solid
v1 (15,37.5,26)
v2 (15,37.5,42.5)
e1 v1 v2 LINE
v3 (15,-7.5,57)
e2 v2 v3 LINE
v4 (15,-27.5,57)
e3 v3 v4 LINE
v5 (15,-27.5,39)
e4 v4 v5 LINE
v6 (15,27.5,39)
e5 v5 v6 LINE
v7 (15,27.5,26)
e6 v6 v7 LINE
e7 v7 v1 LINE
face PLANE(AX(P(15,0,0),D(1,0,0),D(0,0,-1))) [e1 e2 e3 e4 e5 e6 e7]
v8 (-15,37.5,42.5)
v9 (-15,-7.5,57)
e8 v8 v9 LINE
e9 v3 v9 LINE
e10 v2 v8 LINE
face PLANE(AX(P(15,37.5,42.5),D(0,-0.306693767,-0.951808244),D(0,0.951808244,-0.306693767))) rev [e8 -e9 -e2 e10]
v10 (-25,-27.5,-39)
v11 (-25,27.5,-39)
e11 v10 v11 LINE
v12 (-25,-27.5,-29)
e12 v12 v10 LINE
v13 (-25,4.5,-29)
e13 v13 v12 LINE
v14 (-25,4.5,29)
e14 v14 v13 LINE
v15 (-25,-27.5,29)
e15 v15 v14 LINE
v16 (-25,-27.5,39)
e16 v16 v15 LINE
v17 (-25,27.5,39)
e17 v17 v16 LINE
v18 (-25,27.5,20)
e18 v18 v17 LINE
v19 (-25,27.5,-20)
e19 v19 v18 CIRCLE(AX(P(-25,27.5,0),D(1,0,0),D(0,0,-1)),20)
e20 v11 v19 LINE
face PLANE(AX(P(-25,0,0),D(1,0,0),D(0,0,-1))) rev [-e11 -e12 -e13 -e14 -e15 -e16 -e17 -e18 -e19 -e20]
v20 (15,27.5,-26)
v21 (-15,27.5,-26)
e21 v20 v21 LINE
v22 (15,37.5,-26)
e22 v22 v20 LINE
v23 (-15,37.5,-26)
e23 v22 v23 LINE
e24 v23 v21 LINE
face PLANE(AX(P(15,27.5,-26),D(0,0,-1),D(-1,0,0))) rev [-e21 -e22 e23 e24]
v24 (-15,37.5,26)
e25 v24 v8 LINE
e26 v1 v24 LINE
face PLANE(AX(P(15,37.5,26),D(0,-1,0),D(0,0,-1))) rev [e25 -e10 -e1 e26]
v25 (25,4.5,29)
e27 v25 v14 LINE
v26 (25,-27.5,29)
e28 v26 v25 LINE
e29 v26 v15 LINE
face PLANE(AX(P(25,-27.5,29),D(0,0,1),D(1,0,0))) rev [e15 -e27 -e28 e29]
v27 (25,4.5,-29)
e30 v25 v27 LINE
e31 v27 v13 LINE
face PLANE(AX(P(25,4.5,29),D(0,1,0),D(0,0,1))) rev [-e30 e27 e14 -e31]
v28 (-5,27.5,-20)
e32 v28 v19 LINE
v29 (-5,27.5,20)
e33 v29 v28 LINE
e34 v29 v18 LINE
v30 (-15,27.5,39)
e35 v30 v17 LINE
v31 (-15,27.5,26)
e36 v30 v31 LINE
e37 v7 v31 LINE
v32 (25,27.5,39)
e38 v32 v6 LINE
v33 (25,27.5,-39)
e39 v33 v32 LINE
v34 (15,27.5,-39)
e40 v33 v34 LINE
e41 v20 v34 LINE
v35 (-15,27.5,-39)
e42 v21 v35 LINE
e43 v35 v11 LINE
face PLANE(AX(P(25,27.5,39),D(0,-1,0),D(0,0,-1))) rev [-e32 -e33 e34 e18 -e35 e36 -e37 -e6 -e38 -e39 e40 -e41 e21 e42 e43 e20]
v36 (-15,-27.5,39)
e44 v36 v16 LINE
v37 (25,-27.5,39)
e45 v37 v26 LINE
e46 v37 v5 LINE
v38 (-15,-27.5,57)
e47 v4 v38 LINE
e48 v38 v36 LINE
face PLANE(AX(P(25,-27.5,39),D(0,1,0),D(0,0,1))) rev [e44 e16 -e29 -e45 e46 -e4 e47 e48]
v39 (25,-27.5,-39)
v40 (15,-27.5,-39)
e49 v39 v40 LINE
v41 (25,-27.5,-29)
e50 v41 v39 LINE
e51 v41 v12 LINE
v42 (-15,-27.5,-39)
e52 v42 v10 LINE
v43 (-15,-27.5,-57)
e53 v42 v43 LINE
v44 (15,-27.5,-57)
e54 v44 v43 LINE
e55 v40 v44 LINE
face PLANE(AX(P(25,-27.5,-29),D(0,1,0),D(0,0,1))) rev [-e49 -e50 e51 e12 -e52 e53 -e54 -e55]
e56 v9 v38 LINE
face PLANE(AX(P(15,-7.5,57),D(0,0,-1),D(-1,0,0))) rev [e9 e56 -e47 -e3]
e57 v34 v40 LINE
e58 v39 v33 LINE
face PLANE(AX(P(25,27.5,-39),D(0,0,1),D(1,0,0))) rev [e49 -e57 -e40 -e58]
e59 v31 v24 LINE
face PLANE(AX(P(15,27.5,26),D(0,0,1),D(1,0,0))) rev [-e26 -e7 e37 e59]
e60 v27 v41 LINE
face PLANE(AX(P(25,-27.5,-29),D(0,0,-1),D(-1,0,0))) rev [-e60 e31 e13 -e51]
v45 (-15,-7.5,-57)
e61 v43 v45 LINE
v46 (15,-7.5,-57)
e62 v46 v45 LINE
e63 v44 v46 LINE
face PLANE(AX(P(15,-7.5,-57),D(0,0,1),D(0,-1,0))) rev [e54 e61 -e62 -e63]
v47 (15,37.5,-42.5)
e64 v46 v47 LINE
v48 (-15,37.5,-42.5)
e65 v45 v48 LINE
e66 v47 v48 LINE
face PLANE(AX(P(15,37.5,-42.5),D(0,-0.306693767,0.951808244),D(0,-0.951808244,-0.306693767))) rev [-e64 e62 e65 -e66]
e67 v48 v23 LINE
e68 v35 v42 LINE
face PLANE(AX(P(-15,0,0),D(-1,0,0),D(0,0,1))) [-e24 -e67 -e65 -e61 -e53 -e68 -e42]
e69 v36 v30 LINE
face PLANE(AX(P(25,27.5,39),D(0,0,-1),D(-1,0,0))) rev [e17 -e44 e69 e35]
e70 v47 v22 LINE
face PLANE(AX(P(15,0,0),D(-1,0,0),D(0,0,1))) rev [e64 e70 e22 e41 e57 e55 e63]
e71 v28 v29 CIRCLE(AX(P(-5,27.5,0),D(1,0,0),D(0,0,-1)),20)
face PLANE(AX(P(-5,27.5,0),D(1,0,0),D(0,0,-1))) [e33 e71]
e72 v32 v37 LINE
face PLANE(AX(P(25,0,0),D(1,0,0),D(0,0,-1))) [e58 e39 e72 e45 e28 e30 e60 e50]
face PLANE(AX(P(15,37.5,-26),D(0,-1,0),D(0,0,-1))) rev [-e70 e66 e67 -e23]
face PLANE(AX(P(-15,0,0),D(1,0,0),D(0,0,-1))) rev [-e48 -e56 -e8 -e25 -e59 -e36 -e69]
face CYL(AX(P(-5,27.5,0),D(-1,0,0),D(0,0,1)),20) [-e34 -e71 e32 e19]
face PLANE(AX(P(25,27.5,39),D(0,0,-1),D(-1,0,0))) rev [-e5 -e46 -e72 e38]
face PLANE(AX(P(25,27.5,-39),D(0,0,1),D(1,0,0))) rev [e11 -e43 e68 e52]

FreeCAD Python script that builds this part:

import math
import FreeCAD as App
import Part
import Sketcher
from FreeCAD import Vector
Q = App.Units.Quantity


def add_polygon(sketch, points):
    """Adds a closed chain of lines whose ends are joined by coincident constraints."""
    first, n = sketch.GeometryCount, len(points)
    for a, b in zip(points, points[1:] + points[:1]):
        sketch.addGeometry(Part.LineSegment(App.Vector(*a, 0), App.Vector(*b, 0)), False)
    for i in range(n):
        sketch.addConstraint(Sketcher.Constraint("Coincident", first + i, 2, first + (i + 1) % n, 1))

doc = App.newDocument("Part")
body = doc.addObject("PartDesign::Body", "Body")

sketch1 = doc.addObject("Sketcher::SketchObject", "Sketch")
body.addObject(sketch1)
sketch1.AttachmentSupport = (doc.YZ_Plane, [""])
sketch1.MapMode = "FlatFace"
add_polygon(sketch1, [(-27.5, -29), (-27.5, -39), (27.5, -39), (27.5, 39), (-27.5, 39), (-27.5, 29), (4.5, 29), (4.5, -29)])
sketch1.addConstraint(Sketcher.Constraint("Vertical", 0))
sketch1.addConstraint(Sketcher.Constraint("Horizontal", 1))
sketch1.addConstraint(Sketcher.Constraint("Vertical", 2))
sketch1.addConstraint(Sketcher.Constraint("Horizontal", 3))
sketch1.addConstraint(Sketcher.Constraint("Vertical", 4))
sketch1.addConstraint(Sketcher.Constraint("Horizontal", 5))
sketch1.addConstraint(Sketcher.Constraint("Vertical", 6))
sketch1.addConstraint(Sketcher.Constraint("Horizontal", 7))
sketch1.addConstraint(Sketcher.Constraint("Symmetric", 0, 2, 2, 2, -1, 1))
sketch1.addConstraint(Sketcher.Constraint("Symmetric", 4, 2, 7, 2, -1))
sketch1.addConstraint(Sketcher.Constraint("DistanceX", 1, 1, 1, 2, Q("55 mm")))
sketch1.addConstraint(Sketcher.Constraint("DistanceX", 5, 1, 5, 2, Q("32 mm")))
sketch1.addConstraint(Sketcher.Constraint("DistanceY", 0, 2, 0, 1, Q("10 mm")))
sketch1.addConstraint(Sketcher.Constraint("DistanceY", 2, 1, 2, 2, Q("78 mm")))
pad1 = doc.addObject("PartDesign::Pad", "Pad")
body.addObject(pad1)
pad1.Profile = sketch1
pad1.Length = 50
pad1.Midplane = True

sketch2 = doc.addObject("Sketcher::SketchObject", "Sketch001")
body.addObject(sketch2)
sketch2.AttachmentSupport = (doc.YZ_Plane, [""])
sketch2.MapMode = "FlatFace"
add_polygon(sketch2, [(27.5, 26), (37.5, 26), (37.5, 42.5), (-7.5, 57), (-27.5, 57), (-27.5, 39), (27.5, 39)])
add_polygon(sketch2, [(27.5, -39), (-27.5, -39), (-27.5, -57), (-7.5, -57), (37.5, -42.5), (37.5, -26), (27.5, -26)])
sketch2.addConstraint(Sketcher.Constraint("Horizontal", 0))
sketch2.addConstraint(Sketcher.Constraint("Vertical", 1))
sketch2.addConstraint(Sketcher.Constraint("Horizontal", 3))
sketch2.addConstraint(Sketcher.Constraint("Vertical", 4))
sketch2.addConstraint(Sketcher.Constraint("Horizontal", 5))
sketch2.addConstraint(Sketcher.Constraint("Vertical", 6))
sketch2.addConstraint(Sketcher.Constraint("Horizontal", 7))
sketch2.addConstraint(Sketcher.Constraint("Vertical", 8))
sketch2.addConstraint(Sketcher.Constraint("Horizontal", 9))
sketch2.addConstraint(Sketcher.Constraint("Vertical", 11))
sketch2.addConstraint(Sketcher.Constraint("Horizontal", 12))
sketch2.addConstraint(Sketcher.Constraint("Vertical", 13))
sketch2.addConstraint(Sketcher.Constraint("Symmetric", 5, 2, 7, 2, -1, 1))
sketch2.addConstraint(Sketcher.Constraint("Symmetric", 3, 2, 8, 2, -1))
sketch2.addConstraint(Sketcher.Constraint("Symmetric", 1, 2, 10, 2, -1))
sketch2.addConstraint(Sketcher.Constraint("Symmetric", 6, 2, 12, 2, -1))
sketch2.addConstraint(Sketcher.Constraint("Vertical", 2, 2, 9, 2))
sketch2.addConstraint(Sketcher.Constraint("DistanceX", 0, 1, 0, 2, Q("10 mm")))
sketch2.addConstraint(Sketcher.Constraint("DistanceX", 3, 2, 3, 1, Q("20 mm")))
sketch2.addConstraint(Sketcher.Constraint("DistanceX", 5, 1, 5, 2, Q("55 mm")))
sketch2.addConstraint(Sketcher.Constraint("DistanceY", 4, 2, 4, 1, Q("18 mm")))
sketch2.addConstraint(Sketcher.Constraint("DistanceY", 6, 2, 6, 1, Q("13 mm")))
sketch2.addConstraint(Sketcher.Constraint("DistanceY", 1, 1, 1, 2, Q("16.5 mm")))
sketch2.addConstraint(Sketcher.Constraint("DistanceY", -1, 1, 0, 2, Q("26 mm")))
pad2 = doc.addObject("PartDesign::Pad", "Pad001")
body.addObject(pad2)
pad2.Profile = sketch2
pad2.Length = 30
pad2.Midplane = True

sketch3 = doc.addObject("Sketcher::SketchObject", "Sketch002")
body.addObject(sketch3)
sketch3.AttachmentSupport = (doc.YZ_Plane, [""])
sketch3.MapMode = "FlatFace"
sketch3.AttachmentOffset = App.Placement(Vector(0, 0, -25), App.Rotation())
sketch3.addGeometry(Part.LineSegment(Vector(27.5, 20, 0), Vector(27.5, -20, 0)), False)
sketch3.addGeometry(Part.ArcOfCircle(Part.Circle(Vector(27.5, 0, 0), Vector(0, 0, 1), 20), math.radians(-90), math.radians(90)), False)
sketch3.addConstraint(Sketcher.Constraint("Coincident", 0, 1, 1, 2))
sketch3.addConstraint(Sketcher.Constraint("Coincident", 1, 1, 0, 2))
sketch3.addConstraint(Sketcher.Constraint("Vertical", 0))
sketch3.addConstraint(Sketcher.Constraint("PointOnObject", 1, 3, -1))
sketch3.addConstraint(Sketcher.Constraint("Vertical", 1, 3, 0, 1))
sketch3.addConstraint(Sketcher.Constraint("Radius", 1, Q("20 mm")))
sketch3.addConstraint(Sketcher.Constraint("DistanceX", -1, 1, 1, 3, Q("27.5 mm")))
pad3 = doc.addObject("PartDesign::Pad", "Pad002")
body.addObject(pad3)
pad3.Profile = sketch3
pad3.Length = 20

doc.recompute()
